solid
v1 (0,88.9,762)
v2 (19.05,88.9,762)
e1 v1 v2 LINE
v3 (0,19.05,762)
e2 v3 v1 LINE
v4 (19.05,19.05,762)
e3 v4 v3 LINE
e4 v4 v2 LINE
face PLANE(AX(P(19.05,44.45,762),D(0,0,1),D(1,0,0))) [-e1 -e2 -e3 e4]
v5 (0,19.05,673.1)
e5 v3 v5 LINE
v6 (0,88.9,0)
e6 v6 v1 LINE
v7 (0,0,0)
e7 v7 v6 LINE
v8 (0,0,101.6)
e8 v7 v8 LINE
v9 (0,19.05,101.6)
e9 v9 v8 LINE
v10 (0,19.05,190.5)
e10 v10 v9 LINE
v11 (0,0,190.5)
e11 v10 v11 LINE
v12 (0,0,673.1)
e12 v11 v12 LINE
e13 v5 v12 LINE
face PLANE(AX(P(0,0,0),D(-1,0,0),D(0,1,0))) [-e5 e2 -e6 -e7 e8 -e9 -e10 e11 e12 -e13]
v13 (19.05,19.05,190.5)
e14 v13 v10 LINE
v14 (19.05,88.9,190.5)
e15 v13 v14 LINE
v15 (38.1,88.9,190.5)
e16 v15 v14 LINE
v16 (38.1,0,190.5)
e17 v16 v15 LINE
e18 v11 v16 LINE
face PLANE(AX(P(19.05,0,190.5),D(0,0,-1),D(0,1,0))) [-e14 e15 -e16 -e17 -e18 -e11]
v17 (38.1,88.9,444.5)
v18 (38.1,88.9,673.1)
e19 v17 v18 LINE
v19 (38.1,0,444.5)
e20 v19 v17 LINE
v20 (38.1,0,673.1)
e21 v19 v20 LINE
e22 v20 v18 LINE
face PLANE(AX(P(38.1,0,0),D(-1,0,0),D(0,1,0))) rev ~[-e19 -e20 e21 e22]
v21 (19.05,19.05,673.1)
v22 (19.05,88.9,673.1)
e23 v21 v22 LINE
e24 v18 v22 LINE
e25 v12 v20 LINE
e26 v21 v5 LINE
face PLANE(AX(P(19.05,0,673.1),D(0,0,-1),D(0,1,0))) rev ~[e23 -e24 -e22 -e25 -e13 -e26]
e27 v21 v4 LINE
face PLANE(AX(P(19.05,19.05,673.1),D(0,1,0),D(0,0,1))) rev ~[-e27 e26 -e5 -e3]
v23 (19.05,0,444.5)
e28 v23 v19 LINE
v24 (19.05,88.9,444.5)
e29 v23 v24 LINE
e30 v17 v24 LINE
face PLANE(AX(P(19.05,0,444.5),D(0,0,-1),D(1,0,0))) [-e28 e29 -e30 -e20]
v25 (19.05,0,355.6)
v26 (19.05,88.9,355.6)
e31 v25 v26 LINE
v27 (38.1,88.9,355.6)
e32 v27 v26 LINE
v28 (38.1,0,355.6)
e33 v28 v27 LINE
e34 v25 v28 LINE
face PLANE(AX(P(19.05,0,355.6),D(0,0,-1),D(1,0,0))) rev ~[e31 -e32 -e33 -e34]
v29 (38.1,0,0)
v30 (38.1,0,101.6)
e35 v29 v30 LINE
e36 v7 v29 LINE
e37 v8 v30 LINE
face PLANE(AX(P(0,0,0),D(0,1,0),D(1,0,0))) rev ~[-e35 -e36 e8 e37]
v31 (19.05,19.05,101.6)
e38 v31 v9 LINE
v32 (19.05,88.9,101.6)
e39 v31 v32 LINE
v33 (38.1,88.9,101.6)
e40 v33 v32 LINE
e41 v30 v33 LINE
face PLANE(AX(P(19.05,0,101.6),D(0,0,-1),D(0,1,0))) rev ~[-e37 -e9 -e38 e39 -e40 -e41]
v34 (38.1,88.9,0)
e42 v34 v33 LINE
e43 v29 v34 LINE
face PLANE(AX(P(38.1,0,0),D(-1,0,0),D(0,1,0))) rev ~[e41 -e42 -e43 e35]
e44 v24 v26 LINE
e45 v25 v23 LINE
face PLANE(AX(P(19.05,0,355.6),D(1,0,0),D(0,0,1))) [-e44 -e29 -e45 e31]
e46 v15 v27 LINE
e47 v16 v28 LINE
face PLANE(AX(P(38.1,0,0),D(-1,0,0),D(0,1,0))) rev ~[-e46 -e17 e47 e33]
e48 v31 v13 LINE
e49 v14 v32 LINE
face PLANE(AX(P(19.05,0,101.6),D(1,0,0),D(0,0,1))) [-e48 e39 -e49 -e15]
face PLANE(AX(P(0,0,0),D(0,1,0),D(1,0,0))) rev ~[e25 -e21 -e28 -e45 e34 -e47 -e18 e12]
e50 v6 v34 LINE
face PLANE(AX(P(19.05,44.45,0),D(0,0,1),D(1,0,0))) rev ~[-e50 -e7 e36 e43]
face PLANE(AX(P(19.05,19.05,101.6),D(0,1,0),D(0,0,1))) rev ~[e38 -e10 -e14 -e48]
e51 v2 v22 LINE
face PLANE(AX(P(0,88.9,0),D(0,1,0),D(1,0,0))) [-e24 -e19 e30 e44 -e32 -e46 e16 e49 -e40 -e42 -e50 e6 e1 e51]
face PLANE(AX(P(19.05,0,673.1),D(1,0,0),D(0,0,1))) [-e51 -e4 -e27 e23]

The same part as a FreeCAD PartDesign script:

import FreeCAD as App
import Part
import Sketcher
from FreeCAD import Vector
Q = App.Units.Quantity

doc = App.newDocument("Part")
body = doc.addObject("PartDesign::Body", "Body")

# Sketch on XY plane
sketch1 = body.newObject("Sketcher::SketchObject", "Sketch")
sketch1.AttachmentSupport = (doc.getObject("XY_Plane"), [""])
sketch1.MapMode = "FlatFace"
sketch1.addGeometry(Part.LineSegment(Vector(0, 88.9, 0), Vector(0, 0, 0)), False)
sketch1.addGeometry(Part.LineSegment(Vector(0, 0, 0), Vector(38.1, 0, 0)), False)
sketch1.addGeometry(Part.LineSegment(Vector(38.1, 0, 0), Vector(38.1, 88.9, 0)), False)
sketch1.addGeometry(Part.LineSegment(Vector(38.1, 88.9, 0), Vector(0, 88.9, 0)), False)
sketch1.addConstraint(Sketcher.Constraint("Coincident", 0, 2, 1, 1))
sketch1.addConstraint(Sketcher.Constraint("Coincident", 1, 2, 2, 1))
sketch1.addConstraint(Sketcher.Constraint("Coincident", 2, 2, 3, 1))
sketch1.addConstraint(Sketcher.Constraint("Coincident", 3, 2, 0, 1))
sketch1.addConstraint(Sketcher.Constraint("Vertical", 0))
sketch1.addConstraint(Sketcher.Constraint("Horizontal", 1))
sketch1.addConstraint(Sketcher.Constraint("Vertical", 2))
sketch1.addConstraint(Sketcher.Constraint("Horizontal", 3))
sketch1.addConstraint(Sketcher.Constraint("Coincident", 0, 2, -1, 1))
sketch1.addConstraint(Sketcher.Constraint("DistanceX", 1, 1, 1, 2, Q("1.5 in")))
sketch1.addConstraint(Sketcher.Constraint("DistanceY", 0, 2, 0, 1, Q("3.5 in")))
pad1 = body.newObject("PartDesign::Pad", "Pad")
pad1.Profile = sketch1
pad1.Length = Q("30 in")

# Sketch on XZ plane
sketch2 = body.newObject("Sketcher::SketchObject", "Sketch001")
sketch2.AttachmentSupport = (doc.getObject("XZ_Plane"), [""])
sketch2.MapMode = "FlatFace"
sketch2.addGeometry(Part.LineSegment(Vector(19.05, 762, 0), Vector(19.05, 673.1, 0)), False)
sketch2.addGeometry(Part.LineSegment(Vector(19.05, 673.1, 0), Vector(38.1, 673.1, 0)), False)
sketch2.addGeometry(Part.LineSegment(Vector(38.1, 673.1, 0), Vector(38.1, 762, 0)), False)
sketch2.addGeometry(Part.LineSegment(Vector(38.1, 762, 0), Vector(19.05, 762, 0)), False)
sketch2.addConstraint(Sketcher.Constraint("Coincident", 0, 2, 1, 1))
sketch2.addConstraint(Sketcher.Constraint("Coincident", 1, 2, 2, 1))
sketch2.addConstraint(Sketcher.Constraint("Coincident", 2, 2, 3, 1))
sketch2.addConstraint(Sketcher.Constraint("Coincident", 3, 2, 0, 1))
sketch2.addConstraint(Sketcher.Constraint("Vertical", 0))
sketch2.addConstraint(Sketcher.Constraint("Horizontal", 1))
sketch2.addConstraint(Sketcher.Constraint("Vertical", 2))
sketch2.addConstraint(Sketcher.Constraint("Horizontal", 3))
sketch2.addConstraint(Sketcher.Constraint("DistanceY", 0, 2, 0, 1, Q("3.5 in")))
sketch2.addConstraint(Sketcher.Constraint("DistanceY", -1, 1, 2, 2, Q("30 in")))
sketch2.addConstraint(Sketcher.Constraint("DistanceX", 1, 1, 1, 2, Q("0.75 in")))
sketch2.addConstraint(Sketcher.Constraint("DistanceX", -1, 1, 1, 2, Q("1.5 in")))
pocket1 = body.newObject("PartDesign::Pocket", "Pocket")
pocket1.Profile = sketch2
pocket1.Type = "ThroughAll"

# Sketch on XZ plane
sketch3 = body.newObject("Sketcher::SketchObject", "Sketch002")
sketch3.AttachmentSupport = (doc.getObject("XZ_Plane"), [""])
sketch3.MapMode = "FlatFace"
sketch3.addGeometry(Part.LineSegment(Vector(19.05, 190.5, 0), Vector(19.05, 101.6, 0)), False)
sketch3.addGeometry(Part.LineSegment(Vector(19.05, 101.6, 0), Vector(38.1, 101.6, 0)), False)
sketch3.addGeometry(Part.LineSegment(Vector(38.1, 101.6, 0), Vector(38.1, 190.5, 0)), False)
sketch3.addGeometry(Part.LineSegment(Vector(38.1, 190.5, 0), Vector(19.05, 190.5, 0)), False)
sketch3.addConstraint(Sketcher.Constraint("Coincident", 0, 2, 1, 1))
sketch3.addConstraint(Sketcher.Constraint("Coincident", 1, 2, 2, 1))
sketch3.addConstraint(Sketcher.Constraint("Coincident", 2, 2, 3, 1))
sketch3.addConstraint(Sketcher.Constraint("Coincident", 3, 2, 0, 1))
sketch3.addConstraint(Sketcher.Constraint("Vertical", 0))
sketch3.addConstraint(Sketcher.Constraint("Horizontal", 1))
sketch3.addConstraint(Sketcher.Constraint("Vertical", 2))
sketch3.addConstraint(Sketcher.Constraint("Horizontal", 3))
sketch3.addConstraint(Sketcher.Constraint("DistanceY", 0, 2, 0, 1, Q("3.5 in")))
sketch3.addConstraint(Sketcher.Constraint("DistanceY", -1, 1, 0, 2, Q("4 in")))
sketch3.addConstraint(Sketcher.Constraint("DistanceX", 1, 1, 1, 2, Q("0.75 in")))
sketch3.addConstraint(Sketcher.Constraint("DistanceX", -1, 1, 1, 2, Q("1.5 in")))
pocket2 = body.newObject("PartDesign::Pocket", "Pocket001")
pocket2.Profile = sketch3
pocket2.Type = "ThroughAll"

# Sketch on XZ plane
sketch4 = body.newObject("Sketcher::SketchObject", "Sketch003")
sketch4.AttachmentSupport = (doc.getObject("XZ_Plane"), [""])
sketch4.MapMode = "FlatFace"
sketch4.addGeometry(Part.LineSegment(Vector(19.05, 444.5, 0), Vector(19.05, 355.6, 0)), False)
sketch4.addGeometry(Part.LineSegment(Vector(19.05, 355.6, 0), Vector(38.1, 355.6, 0)), False)
sketch4.addGeometry(Part.LineSegment(Vector(38.1, 355.6, 0), Vector(38.1, 444.5, 0)), False)
sketch4.addGeometry(Part.LineSegment(Vector(38.1, 444.5, 0), Vector(19.05, 444.5, 0)), False)
sketch4.addConstraint(Sketcher.Constraint("Coincident", 0, 2, 1, 1))
sketch4.addConstraint(Sketcher.Constraint("Coincident", 1, 2, 2, 1))
sketch4.addConstraint(Sketcher.Constraint("Coincident", 2, 2, 3, 1))
sketch4.addConstraint(Sketcher.Constraint("Coincident", 3, 2, 0, 1))
sketch4.addConstraint(Sketcher.Constraint("Vertical", 0))
sketch4.addConstraint(Sketcher.Constraint("Horizontal", 1))
sketch4.addConstraint(Sketcher.Constraint("Vertical", 2))
sketch4.addConstraint(Sketcher.Constraint("Horizontal", 3))
sketch4.addConstraint(Sketcher.Constraint("DistanceY", 0, 2, 0, 1, Q("3.5 in")))
sketch4.addConstraint(Sketcher.Constraint("DistanceY", -1, 1, 0, 2, Q("14 in")))
sketch4.addConstraint(Sketcher.Constraint("DistanceX", 1, 1, 1, 2, Q("0.75 in")))
sketch4.addConstraint(Sketcher.Constraint("DistanceX", -1, 1, 1, 2, Q("1.5 in")))
pocket3 = body.newObject("PartDesign::Pocket", "Pocket002")
pocket3.Profile = sketch4
pocket3.Type = "ThroughAll"

# Sketch on YZ plane
sketch5 = body.newObject("Sketcher::SketchObject", "Sketch004")
sketch5.AttachmentSupport = (doc.getObject("YZ_Plane"), [""])
sketch5.MapMode = "FlatFace"
sketch5.AttachmentOffset = App.Placement(Vector(0, 0, 0.75 * 25.4), App.Rotation())
sketch5.addGeometry(Part.LineSegment(Vector(0, 190.5, 0), Vector(0, 101.6, 0)), False)
sketch5.addGeometry(Part.LineSegment(Vector(0, 101.6, 0), Vector(19.05, 101.6, 0)), False)
sketch5.addGeometry(Part.LineSegment(Vector(19.05, 101.6, 0), Vector(19.05, 190.5, 0)), False)
sketch5.addGeometry(Part.LineSegment(Vector(19.05, 190.5, 0), Vector(0, 190.5, 0)), False)
sketch5.addConstraint(Sketcher.Constraint("Coincident", 0, 2, 1, 1))
sketch5.addConstraint(Sketcher.Constraint("Coincident", 1, 2, 2, 1))
sketch5.addConstraint(Sketcher.Constraint("Coincident", 2, 2, 3, 1))
sketch5.addConstraint(Sketcher.Constraint("Coincident", 3, 2, 0, 1))
sketch5.addConstraint(Sketcher.Constraint("Vertical", 0))
sketch5.addConstraint(Sketcher.Constraint("Horizontal", 1))
sketch5.addConstraint(Sketcher.Constraint("Vertical", 2))
sketch5.addConstraint(Sketcher.Constraint("Horizontal", 3))
sketch5.addConstraint(Sketcher.Constraint("PointOnObject", 0, 2, -2))
sketch5.addConstraint(Sketcher.Constraint("DistanceY", 0, 2, 0, 1, Q("3.5 in")))
sketch5.addConstraint(Sketcher.Constraint("DistanceY", -1, 1, 0, 2, Q("4 in")))
sketch5.addConstraint(Sketcher.Constraint("DistanceX", 1, 1, 1, 2, Q("0.75 in")))
pocket4 = body.newObject("PartDesign::Pocket", "Pocket003")
pocket4.Profile = sketch5
pocket4.Type = "ThroughAll"

# Sketch on YZ plane
sketch6 = body.newObject("Sketcher::SketchObject", "Sketch005")
sketch6.AttachmentSupport = (doc.getObject("YZ_Plane"), [""])
sketch6.MapMode = "FlatFace"
sketch6.AttachmentOffset = App.Placement(Vector(0, 0, 0.75 * 25.4), App.Rotation())
sketch6.addGeometry(Part.LineSegment(Vector(0, 762, 0), Vector(0, 673.1, 0)), False)
sketch6.addGeometry(Part.LineSegment(Vector(0, 673.1, 0), Vector(19.05, 673.1, 0)), False)
sketch6.addGeometry(Part.LineSegment(Vector(19.05, 673.1, 0), Vector(19.05, 762, 0)), False)
sketch6.addGeometry(Part.LineSegment(Vector(19.05, 762, 0), Vector(0, 762, 0)), False)
sketch6.addConstraint(Sketcher.Constraint("Coincident", 0, 2, 1, 1))
sketch6.addConstraint(Sketcher.Constraint("Coincident", 1, 2, 2, 1))
sketch6.addConstraint(Sketcher.Constraint("Coincident", 2, 2, 3, 1))
sketch6.addConstraint(Sketcher.Constraint("Coincident", 3, 2, 0, 1))
sketch6.addConstraint(Sketcher.Constraint("Vertical", 0))
sketch6.addConstraint(Sketcher.Constraint("Horizontal", 1))
sketch6.addConstraint(Sketcher.Constraint("Vertical", 2))
sketch6.addConstraint(Sketcher.Constraint("Horizontal", 3))
sketch6.addConstraint(Sketcher.Constraint("PointOnObject", 0, 2, -2))
sketch6.addConstraint(Sketcher.Constraint("DistanceY", 0, 2, 0, 1, Q("3.5 in")))
sketch6.addConstraint(Sketcher.Constraint("DistanceY", -1, 1, 2, 2, Q("30 in")))
sketch6.addConstraint(Sketcher.Constraint("DistanceX", 1, 1, 1, 2, Q("0.75 in")))
pocket5 = body.newObject("PartDesign::Pocket", "Pocket004")
pocket5.Profile = sketch6
pocket5.Type = "ThroughAll"

doc.recompute()
